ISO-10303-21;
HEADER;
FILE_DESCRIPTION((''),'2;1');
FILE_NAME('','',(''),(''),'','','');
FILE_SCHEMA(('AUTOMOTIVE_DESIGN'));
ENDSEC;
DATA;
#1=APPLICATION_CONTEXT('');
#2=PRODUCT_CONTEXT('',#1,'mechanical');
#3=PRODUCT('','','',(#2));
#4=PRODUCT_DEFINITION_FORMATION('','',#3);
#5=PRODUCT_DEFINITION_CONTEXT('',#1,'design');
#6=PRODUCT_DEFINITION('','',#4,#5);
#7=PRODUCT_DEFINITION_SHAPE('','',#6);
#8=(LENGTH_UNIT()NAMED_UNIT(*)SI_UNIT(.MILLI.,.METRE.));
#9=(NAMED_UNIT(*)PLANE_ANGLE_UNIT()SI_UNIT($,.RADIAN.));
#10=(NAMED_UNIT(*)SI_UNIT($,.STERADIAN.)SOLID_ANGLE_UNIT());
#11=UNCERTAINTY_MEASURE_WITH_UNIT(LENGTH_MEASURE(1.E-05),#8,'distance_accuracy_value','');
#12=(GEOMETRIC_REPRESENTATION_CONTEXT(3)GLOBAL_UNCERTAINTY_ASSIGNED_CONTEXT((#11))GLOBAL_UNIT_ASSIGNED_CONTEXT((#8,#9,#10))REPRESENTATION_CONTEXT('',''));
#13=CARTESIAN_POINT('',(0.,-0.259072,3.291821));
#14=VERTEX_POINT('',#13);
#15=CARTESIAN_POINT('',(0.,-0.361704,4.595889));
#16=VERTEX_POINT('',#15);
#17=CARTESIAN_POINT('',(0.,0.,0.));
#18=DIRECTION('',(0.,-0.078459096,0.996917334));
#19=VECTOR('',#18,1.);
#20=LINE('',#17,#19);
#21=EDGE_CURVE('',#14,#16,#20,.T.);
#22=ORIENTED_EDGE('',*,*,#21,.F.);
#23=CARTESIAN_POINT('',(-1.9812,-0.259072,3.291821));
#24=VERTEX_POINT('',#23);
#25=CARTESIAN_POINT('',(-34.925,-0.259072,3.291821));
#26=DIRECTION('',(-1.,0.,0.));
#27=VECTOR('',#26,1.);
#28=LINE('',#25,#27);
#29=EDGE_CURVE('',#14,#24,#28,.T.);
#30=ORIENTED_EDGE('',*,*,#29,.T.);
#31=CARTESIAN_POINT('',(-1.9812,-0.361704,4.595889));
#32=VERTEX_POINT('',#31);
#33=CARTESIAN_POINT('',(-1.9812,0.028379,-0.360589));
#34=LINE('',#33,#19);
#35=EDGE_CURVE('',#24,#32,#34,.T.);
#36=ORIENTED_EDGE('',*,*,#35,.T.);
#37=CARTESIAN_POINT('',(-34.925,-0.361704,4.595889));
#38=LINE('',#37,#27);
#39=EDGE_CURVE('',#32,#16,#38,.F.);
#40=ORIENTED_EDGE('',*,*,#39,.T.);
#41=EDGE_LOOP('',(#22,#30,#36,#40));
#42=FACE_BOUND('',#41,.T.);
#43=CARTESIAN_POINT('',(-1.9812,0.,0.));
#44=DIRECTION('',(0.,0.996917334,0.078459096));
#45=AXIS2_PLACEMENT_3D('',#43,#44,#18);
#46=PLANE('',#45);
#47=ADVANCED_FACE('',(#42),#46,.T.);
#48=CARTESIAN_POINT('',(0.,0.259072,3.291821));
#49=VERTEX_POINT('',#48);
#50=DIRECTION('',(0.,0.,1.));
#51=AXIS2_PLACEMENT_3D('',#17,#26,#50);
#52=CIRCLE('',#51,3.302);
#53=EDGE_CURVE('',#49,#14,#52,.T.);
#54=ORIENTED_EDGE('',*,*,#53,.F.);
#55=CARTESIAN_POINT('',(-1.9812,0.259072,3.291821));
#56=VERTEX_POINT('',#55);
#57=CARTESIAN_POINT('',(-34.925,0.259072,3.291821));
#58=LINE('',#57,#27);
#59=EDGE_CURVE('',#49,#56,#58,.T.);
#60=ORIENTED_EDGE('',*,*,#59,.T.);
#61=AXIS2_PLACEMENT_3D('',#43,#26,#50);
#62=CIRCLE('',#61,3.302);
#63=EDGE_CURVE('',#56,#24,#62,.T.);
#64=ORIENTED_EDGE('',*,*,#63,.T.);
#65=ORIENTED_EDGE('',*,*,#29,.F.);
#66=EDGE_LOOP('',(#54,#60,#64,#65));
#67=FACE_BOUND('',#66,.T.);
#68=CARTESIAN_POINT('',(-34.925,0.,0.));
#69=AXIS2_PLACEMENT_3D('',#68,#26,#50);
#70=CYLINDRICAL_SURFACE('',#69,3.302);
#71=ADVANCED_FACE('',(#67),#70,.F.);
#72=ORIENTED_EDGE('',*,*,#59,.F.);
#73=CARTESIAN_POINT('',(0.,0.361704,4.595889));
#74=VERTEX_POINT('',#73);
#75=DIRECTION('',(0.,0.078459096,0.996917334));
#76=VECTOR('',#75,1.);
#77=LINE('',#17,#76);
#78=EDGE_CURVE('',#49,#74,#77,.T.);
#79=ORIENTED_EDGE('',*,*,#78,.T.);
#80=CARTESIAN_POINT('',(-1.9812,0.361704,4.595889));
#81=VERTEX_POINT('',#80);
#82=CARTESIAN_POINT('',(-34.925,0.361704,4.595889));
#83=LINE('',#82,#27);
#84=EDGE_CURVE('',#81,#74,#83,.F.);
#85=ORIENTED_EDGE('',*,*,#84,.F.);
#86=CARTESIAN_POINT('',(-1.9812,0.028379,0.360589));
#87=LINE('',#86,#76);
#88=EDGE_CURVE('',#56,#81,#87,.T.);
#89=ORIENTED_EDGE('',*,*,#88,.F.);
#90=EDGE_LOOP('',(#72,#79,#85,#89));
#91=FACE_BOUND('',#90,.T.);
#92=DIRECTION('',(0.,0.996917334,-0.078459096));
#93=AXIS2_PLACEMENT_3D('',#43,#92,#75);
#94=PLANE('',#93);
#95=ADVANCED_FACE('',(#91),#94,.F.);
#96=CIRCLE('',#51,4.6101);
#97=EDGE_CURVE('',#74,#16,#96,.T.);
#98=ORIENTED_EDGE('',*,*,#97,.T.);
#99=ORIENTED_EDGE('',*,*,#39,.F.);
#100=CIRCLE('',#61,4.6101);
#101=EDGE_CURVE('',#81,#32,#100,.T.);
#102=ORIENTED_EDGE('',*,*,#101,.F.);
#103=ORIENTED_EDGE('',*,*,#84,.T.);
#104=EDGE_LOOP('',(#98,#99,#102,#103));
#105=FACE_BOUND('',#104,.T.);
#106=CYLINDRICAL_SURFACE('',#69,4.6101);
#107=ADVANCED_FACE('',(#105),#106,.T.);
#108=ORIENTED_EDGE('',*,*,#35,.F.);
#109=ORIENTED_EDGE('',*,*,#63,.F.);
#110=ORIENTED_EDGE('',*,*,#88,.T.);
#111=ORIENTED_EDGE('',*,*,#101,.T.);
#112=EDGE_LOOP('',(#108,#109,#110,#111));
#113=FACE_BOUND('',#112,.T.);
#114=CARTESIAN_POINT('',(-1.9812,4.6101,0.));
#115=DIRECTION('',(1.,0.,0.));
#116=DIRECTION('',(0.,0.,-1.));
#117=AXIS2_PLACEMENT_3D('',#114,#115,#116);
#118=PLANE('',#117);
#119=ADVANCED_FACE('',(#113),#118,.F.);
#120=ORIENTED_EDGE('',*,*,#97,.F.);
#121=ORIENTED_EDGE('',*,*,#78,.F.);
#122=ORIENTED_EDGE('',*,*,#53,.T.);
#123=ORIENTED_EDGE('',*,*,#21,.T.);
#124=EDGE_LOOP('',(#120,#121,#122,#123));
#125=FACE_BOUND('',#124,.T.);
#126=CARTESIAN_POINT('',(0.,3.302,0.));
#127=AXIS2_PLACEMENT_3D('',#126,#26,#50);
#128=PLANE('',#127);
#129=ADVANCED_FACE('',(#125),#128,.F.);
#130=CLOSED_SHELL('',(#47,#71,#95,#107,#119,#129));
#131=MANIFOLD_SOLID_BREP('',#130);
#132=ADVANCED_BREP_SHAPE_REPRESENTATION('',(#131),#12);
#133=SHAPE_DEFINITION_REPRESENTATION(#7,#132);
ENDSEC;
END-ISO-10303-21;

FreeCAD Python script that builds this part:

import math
import FreeCAD as App
import Part
import Sketcher
from FreeCAD import Vector
Q = App.Units.Quantity


def add_polygon(sketch, points):
    """Adds a closed chain of lines whose ends are joined by coincident constraints."""
    first, n = sketch.GeometryCount, len(points)
    for a, b in zip(points, points[1:] + points[:1]):
        sketch.addGeometry(Part.LineSegment(App.Vector(*a, 0), App.Vector(*b, 0)), False)
    for i in range(n):
        sketch.addConstraint(Sketcher.Constraint("Coincident", first + i, 2, first + (i + 1) % n, 1))

doc = App.newDocument("Part")
body = doc.addObject("PartDesign::Body", "Body")

# Sketch on XY plane
sketch1 = body.newObject("Sketcher::SketchObject", "Sketch")
sketch1.AttachmentSupport = (doc.getObject("XY_Plane"), [""])
sketch1.MapMode = "FlatFace"
add_polygon(sketch1, [(-2, 4.6), (-2, 3.3), (0, 3.3), (0, 4.6)])  # lines 0-3
sketch1.addConstraint(Sketcher.Constraint("Vertical", 0))
sketch1.addConstraint(Sketcher.Constraint("Horizontal", 1))
sketch1.addConstraint(Sketcher.Constraint("Vertical", 2))
sketch1.addConstraint(Sketcher.Constraint("Horizontal", 3))
sketch1.addConstraint(Sketcher.Constraint("PointOnObject", 1, 2, -2))
sketch1.addConstraint(Sketcher.Constraint("DistanceX", 1, 1, 1, 2, Q("0.078 in")))
sketch1.addConstraint(Sketcher.Constraint("DistanceY", -1, 1, 0, 2, Q("0.13 in")))
sketch1.addConstraint(Sketcher.Constraint("DistanceY", 0, 2, 0, 1, Q("0.0515 in")))
revolution = body.newObject("PartDesign::Revolution", "Revolution")
revolution.Profile = sketch1
revolution.ReferenceAxis = (sketch1, ["H_Axis"])
revolution.Angle = 360

# Sketch on YZ plane
sketch2 = body.newObject("Sketcher::SketchObject", "Sketch001")
sketch2.AttachmentSupport = (doc.getObject("YZ_Plane"), [""])
sketch2.MapMode = "FlatFace"
sketch2.addGeometry(Part.LineSegment(Vector(0, 0, 0), Vector(-0.4, 4.7, 0)), False)
sketch2.addGeometry(Part.ArcOfCircle(Part.Circle(Vector(0, 0, 0), Vector(0, 0, 1), 4.7), math.radians(85.5), math.radians(94.5)), False)
sketch2.addGeometry(Part.LineSegment(Vector(0.4, 4.7, 0), Vector(0, 0, 0)), False)
sketch2.addConstraint(Sketcher.Constraint("Coincident", 0, 2, 1, 2))
sketch2.addConstraint(Sketcher.Constraint("Coincident", 1, 1, 2, 1))
sketch2.addConstraint(Sketcher.Constraint("Coincident", 2, 2, 0, 1))
sketch2.addConstraint(Sketcher.Constraint("Coincident", 1, 3, -1, 1))
sketch2.addConstraint(Sketcher.Constraint("Coincident", 2, 2, -1, 1))
sketch2.addConstraint(Sketcher.Constraint("Horizontal", 0, 2, 1, 1))
sketch2.addConstraint(Sketcher.Constraint("Angle", 0, Q("94.5 deg")))
sketch2.addConstraint(Sketcher.Constraint("Radius", 1, 4.702302))
pocket1 = body.newObject("PartDesign::Pocket", "Pocket")
pocket1.Profile = sketch2
pocket1.Type = "ThroughAll"

doc.recompute()
